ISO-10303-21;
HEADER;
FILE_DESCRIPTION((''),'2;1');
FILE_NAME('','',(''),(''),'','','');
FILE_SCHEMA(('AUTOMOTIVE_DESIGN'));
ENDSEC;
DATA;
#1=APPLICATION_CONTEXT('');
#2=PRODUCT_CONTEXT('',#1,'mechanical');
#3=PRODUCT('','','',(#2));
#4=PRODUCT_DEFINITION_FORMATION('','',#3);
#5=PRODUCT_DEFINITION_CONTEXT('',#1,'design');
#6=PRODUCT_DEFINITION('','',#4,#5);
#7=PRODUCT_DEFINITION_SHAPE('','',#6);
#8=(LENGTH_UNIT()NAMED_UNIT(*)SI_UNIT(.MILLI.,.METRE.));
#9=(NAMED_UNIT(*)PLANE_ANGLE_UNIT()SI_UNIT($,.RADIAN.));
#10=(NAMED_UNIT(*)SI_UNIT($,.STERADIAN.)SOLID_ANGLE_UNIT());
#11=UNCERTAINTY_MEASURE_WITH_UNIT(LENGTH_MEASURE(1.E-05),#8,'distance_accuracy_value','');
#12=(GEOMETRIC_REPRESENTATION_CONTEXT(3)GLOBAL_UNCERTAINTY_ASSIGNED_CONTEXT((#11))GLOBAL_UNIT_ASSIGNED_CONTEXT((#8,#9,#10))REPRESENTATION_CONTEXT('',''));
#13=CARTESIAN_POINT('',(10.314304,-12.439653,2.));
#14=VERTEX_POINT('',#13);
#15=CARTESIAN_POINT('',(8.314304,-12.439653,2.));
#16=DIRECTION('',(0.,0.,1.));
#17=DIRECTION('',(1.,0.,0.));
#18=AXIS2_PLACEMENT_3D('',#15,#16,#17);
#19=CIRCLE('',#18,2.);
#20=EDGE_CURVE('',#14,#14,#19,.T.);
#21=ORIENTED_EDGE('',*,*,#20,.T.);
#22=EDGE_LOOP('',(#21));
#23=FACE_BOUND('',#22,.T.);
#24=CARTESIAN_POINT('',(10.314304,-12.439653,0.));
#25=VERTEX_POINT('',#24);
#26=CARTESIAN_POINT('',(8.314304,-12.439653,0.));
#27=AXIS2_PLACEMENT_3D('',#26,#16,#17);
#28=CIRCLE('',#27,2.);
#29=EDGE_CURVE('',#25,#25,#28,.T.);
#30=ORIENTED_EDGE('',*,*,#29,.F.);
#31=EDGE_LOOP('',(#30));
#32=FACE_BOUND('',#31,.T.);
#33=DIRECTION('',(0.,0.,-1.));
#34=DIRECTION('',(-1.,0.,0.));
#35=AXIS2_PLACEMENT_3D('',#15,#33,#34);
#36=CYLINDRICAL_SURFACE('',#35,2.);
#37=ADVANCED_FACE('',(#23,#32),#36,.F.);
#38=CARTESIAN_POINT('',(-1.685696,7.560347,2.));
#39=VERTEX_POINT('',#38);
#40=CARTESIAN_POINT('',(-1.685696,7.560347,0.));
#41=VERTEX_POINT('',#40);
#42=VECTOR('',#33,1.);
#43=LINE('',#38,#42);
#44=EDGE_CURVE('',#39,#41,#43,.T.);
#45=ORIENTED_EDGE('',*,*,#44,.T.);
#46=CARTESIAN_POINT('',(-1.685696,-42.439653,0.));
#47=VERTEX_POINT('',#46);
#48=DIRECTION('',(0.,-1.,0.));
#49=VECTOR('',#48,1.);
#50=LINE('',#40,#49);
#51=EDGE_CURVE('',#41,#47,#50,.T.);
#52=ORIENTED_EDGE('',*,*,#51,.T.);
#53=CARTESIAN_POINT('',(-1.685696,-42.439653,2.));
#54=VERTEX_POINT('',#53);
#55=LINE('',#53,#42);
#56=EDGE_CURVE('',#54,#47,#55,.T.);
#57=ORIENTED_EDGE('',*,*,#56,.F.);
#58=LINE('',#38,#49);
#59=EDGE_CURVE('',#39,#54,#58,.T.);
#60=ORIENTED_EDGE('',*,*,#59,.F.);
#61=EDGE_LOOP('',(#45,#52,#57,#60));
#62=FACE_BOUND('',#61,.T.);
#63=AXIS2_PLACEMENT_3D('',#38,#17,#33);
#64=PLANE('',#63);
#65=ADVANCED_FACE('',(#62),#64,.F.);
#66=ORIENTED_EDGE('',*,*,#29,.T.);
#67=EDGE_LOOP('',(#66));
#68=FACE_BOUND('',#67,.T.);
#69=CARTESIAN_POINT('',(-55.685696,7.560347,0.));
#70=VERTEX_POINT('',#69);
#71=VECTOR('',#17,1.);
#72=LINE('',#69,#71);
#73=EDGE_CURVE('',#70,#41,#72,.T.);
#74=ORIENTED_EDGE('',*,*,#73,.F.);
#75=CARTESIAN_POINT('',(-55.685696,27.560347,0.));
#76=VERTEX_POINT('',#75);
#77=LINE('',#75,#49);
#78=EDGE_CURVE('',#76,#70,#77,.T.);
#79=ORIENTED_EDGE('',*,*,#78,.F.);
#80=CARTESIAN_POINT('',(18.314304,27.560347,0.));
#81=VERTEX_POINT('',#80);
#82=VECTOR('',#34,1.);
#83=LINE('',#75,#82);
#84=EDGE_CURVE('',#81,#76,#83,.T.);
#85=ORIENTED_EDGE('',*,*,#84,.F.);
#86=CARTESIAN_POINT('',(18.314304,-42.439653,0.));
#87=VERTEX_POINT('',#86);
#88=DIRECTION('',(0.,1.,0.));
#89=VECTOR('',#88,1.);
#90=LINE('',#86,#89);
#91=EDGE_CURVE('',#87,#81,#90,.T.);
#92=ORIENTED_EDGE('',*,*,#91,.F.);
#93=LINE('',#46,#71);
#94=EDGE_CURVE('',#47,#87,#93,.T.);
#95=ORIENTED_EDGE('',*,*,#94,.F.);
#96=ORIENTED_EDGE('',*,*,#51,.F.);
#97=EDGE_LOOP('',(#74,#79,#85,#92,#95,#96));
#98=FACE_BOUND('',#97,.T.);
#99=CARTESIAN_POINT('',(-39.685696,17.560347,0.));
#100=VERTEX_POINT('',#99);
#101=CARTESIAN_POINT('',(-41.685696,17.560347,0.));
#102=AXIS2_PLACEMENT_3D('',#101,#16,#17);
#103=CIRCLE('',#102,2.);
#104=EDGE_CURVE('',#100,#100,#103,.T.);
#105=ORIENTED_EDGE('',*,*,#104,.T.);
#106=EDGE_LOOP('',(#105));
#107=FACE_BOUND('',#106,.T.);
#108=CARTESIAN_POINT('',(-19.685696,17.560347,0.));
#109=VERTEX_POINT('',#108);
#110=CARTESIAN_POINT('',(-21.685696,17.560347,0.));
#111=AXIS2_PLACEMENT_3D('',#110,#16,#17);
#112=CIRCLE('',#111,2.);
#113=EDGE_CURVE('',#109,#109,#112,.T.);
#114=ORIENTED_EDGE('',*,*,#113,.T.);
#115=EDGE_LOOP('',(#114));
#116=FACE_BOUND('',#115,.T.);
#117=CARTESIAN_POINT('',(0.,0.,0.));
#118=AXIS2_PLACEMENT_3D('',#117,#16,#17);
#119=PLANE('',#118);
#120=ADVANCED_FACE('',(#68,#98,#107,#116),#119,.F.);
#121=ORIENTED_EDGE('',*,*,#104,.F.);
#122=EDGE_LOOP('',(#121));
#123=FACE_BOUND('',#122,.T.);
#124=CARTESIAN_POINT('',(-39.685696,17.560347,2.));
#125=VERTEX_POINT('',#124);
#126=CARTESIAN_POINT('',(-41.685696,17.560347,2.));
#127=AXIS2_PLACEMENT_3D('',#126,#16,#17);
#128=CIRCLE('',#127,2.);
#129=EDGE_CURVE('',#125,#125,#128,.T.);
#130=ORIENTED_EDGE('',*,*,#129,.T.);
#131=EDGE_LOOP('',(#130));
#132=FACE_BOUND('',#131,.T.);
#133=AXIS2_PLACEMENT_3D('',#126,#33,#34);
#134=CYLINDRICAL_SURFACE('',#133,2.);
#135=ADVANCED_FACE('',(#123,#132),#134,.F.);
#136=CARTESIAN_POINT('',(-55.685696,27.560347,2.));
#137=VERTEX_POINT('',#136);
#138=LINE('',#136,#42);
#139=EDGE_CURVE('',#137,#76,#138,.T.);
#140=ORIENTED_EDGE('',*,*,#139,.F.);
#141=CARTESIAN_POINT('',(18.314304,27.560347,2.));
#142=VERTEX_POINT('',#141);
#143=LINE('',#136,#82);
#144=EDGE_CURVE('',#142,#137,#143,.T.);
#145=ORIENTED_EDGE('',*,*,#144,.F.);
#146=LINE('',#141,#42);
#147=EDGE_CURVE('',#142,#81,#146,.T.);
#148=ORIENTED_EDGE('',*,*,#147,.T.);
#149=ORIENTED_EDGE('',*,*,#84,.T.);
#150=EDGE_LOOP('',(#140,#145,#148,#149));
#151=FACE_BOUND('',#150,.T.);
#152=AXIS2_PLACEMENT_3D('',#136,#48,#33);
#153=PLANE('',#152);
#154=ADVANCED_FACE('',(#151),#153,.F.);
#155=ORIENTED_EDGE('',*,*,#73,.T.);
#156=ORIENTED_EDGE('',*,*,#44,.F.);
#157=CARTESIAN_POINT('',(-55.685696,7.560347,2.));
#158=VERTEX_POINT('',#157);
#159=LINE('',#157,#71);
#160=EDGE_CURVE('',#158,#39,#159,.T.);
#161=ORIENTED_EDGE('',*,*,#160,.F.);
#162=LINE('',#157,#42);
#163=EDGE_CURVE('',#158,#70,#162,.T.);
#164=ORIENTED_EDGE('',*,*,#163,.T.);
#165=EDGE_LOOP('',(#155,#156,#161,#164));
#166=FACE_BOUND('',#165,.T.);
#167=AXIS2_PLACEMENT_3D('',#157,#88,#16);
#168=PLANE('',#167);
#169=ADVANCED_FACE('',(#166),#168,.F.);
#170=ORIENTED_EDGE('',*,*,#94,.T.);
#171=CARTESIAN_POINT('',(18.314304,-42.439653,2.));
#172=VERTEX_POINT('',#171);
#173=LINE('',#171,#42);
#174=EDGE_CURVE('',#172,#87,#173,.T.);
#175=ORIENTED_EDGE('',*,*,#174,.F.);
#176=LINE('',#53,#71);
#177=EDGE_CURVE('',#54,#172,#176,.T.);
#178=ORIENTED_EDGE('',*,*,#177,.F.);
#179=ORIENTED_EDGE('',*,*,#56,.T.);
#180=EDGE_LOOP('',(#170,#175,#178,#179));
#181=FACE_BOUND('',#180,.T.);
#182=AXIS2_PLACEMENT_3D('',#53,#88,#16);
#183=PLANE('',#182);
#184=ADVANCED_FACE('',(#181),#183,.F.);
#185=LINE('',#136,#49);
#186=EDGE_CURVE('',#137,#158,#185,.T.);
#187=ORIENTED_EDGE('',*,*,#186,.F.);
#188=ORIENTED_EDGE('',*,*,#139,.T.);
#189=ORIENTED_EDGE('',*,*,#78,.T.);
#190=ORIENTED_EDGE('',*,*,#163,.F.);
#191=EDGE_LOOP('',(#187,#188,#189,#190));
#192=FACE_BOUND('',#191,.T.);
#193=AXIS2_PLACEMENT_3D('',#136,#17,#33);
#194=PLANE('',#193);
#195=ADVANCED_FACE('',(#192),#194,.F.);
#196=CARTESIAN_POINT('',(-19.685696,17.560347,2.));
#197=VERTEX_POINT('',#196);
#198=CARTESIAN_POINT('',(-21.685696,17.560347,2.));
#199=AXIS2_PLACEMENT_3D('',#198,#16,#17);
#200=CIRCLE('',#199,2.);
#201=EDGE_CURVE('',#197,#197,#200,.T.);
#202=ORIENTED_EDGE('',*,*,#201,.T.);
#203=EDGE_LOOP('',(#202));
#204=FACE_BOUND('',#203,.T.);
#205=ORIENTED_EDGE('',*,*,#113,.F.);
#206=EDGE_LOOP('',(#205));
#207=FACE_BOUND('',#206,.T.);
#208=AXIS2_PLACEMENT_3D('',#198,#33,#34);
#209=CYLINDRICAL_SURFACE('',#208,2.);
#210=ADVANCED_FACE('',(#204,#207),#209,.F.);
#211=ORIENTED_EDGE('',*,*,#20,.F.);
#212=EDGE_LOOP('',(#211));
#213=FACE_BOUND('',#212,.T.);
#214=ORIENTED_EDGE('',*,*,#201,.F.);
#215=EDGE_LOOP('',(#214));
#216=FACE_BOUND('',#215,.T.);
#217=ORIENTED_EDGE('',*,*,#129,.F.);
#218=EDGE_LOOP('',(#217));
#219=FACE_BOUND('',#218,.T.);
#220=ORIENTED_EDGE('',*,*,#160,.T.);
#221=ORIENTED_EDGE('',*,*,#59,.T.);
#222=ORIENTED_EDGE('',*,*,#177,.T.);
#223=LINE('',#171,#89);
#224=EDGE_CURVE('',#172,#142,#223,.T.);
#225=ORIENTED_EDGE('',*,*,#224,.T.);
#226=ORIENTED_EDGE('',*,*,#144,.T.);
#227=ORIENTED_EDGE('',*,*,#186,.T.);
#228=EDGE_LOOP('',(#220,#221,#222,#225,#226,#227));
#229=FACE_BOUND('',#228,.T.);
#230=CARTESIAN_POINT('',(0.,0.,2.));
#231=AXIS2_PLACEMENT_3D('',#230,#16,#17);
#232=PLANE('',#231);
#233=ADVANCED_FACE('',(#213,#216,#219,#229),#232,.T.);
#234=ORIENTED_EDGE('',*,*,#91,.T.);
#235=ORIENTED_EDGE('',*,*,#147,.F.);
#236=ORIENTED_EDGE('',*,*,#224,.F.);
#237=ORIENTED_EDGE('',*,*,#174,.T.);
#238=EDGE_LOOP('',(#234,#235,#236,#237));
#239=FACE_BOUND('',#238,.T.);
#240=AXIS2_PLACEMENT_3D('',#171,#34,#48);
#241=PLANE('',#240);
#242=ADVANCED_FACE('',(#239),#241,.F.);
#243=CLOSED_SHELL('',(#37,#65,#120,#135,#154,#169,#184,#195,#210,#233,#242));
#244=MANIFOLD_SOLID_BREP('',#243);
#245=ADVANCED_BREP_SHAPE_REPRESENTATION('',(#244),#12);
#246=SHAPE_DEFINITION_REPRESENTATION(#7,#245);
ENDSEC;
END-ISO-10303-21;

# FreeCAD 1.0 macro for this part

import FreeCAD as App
import Part
import Sketcher

doc = App.newDocument("Part")
params = doc.addObject("Spreadsheet::Sheet", "Params")
for row, (alias, value) in enumerate([
    ("sketch1_diameter", "4 mm"),
    ("sketch1_width", "54 mm"),
    ("sketch1_width2", "20 mm"),
    ("sketch1_height", "50 mm"),
    ("pad1_length", "2 mm"),
], start=1):
    params.set(f"A{row}", alias)
    params.set(f"B{row}", "=" + value)
    params.setAlias(f"B{row}", alias)

body = doc.addObject("PartDesign::Body", "Body")

sketch1 = body.newObject("Sketcher::SketchObject", "Sketch")
sketch1.AttachmentSupport = (doc.getObject("XY_Plane"), [""])
sketch1.MapMode = "FlatFace"
sketch1.addGeometry([
    Part.LineSegment(App.Vector(-55.7, 27.6, 0), App.Vector(-55.7, 7.6, 0)),
    Part.LineSegment(App.Vector(-55.7, 7.6, 0), App.Vector(-1.7, 7.6, 0)),
    Part.LineSegment(App.Vector(-1.7, 7.6, 0), App.Vector(-1.7, -42.4, 0)),
    Part.LineSegment(App.Vector(-1.7, -42.4, 0), App.Vector(18.3, -42.4, 0)),
    Part.LineSegment(App.Vector(18.3, -42.4, 0), App.Vector(18.3, 27.6, 0)),
    Part.LineSegment(App.Vector(18.3, 27.6, 0), App.Vector(-55.7, 27.6, 0)),
    Part.Circle(App.Vector(8.3, -12.4, 0), App.Vector(0, 0, 1), 2),
    Part.Circle(App.Vector(-41.7, 17.6, 0), App.Vector(0, 0, 1), 2),
    Part.Circle(App.Vector(-21.7, 17.6, 0), App.Vector(0, 0, 1), 2),
], False)
sketch1.addConstraint([
    Sketcher.Constraint("Coincident", 0, 2, 1, 1),
    Sketcher.Constraint("Coincident", 1, 2, 2, 1),
    Sketcher.Constraint("Coincident", 2, 2, 3, 1),
    Sketcher.Constraint("Coincident", 3, 2, 4, 1),
    Sketcher.Constraint("Coincident", 4, 2, 5, 1),
    Sketcher.Constraint("Coincident", 5, 2, 0, 1),
    Sketcher.Constraint("Vertical", 0),
    Sketcher.Constraint("Horizontal", 1),
    Sketcher.Constraint("Vertical", 2),
    Sketcher.Constraint("Horizontal", 3),
    Sketcher.Constraint("Vertical", 4),
    Sketcher.Constraint("Horizontal", 5),
    Sketcher.Constraint("Equal", 6, 7),
    Sketcher.Constraint("Equal", 7, 8),
    Sketcher.Constraint("Horizontal", 7, 3, 8, 3),
    Sketcher.Constraint("Equal", 3, 0),
    Sketcher.Constraint("Diameter", 6, 4.0),
    Sketcher.Constraint("DistanceX", 1, 1, 1, 2, 54.0),
    Sketcher.Constraint("DistanceX", 3, 1, 3, 2, 20.0),
    Sketcher.Constraint("DistanceY", 2, 2, 2, 1, 50.0),
    Sketcher.Constraint("DistanceX", 7, 3, 6, 3, 50.0),
    Sketcher.Constraint("DistanceY", 6, 3, 7, 3, 30.0),
    Sketcher.Constraint("DistanceX", 7, 3, 8, 3, 20.0),
    Sketcher.Constraint("DistanceX", 0, 2, 7, 3, 14.0),
    Sketcher.Constraint("DistanceY", 0, 2, 7, 3, 10.0),
    Sketcher.Constraint("DistanceX", -1, 1, 6, 3, 8.314304),
    Sketcher.Constraint("DistanceY", 6, 3, -1, 1, 12.439653),
])
sketch1.setExpression("Constraints[16]", "Params.sketch1_diameter")
sketch1.setExpression("Constraints[17]", "Params.sketch1_width")
sketch1.setExpression("Constraints[18]", "Params.sketch1_width2")
sketch1.setExpression("Constraints[19]", "Params.sketch1_height")
pad1 = body.newObject("PartDesign::Pad", "Pad")
pad1.Profile = sketch1
pad1.setExpression("Length", "Params.pad1_length")

doc.recompute()
